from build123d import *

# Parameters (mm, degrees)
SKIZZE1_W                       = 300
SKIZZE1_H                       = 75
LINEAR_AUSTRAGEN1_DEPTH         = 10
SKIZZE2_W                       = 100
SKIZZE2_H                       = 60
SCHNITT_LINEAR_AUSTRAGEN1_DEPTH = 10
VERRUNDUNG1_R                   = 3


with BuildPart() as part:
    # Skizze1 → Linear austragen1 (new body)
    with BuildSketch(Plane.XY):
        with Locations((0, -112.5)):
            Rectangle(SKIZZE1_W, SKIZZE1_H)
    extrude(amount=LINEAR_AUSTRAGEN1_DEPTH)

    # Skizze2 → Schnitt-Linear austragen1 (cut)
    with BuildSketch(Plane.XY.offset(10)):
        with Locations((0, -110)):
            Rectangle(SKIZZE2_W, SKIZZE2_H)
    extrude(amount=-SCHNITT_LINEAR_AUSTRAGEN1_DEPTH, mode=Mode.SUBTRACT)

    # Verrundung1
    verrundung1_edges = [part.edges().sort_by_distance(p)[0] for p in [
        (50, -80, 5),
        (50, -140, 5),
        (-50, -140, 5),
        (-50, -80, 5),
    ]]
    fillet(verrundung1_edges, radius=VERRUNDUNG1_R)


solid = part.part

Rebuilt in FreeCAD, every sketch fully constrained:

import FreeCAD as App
import Part
import Sketcher


def edges_at(feature, points):
    """Names of the edges that pass closest to the given points."""
    edges = feature.Shape.Edges
    near = lambda p: min(range(len(edges)), key=lambda i: edges[i].distToShape(Part.Vertex(*p))[0])
    return sorted({f"Edge{near(p) + 1}" for p in points})


def add_polygon(sketch, points):
    """Adds a closed chain of lines whose ends are joined by coincident constraints."""
    first, n = sketch.GeometryCount, len(points)
    for a, b in zip(points, points[1:] + points[:1]):
        sketch.addGeometry(Part.LineSegment(App.Vector(*a, 0), App.Vector(*b, 0)), False)
    for i in range(n):
        sketch.addConstraint(Sketcher.Constraint("Coincident", first + i, 2, first + (i + 1) % n, 1))

doc = App.newDocument("Part")
params = doc.addObject("Spreadsheet::Sheet", "Params")
for row, (alias, value) in enumerate([
    ("sketch1_width", "300 mm"),
    ("sketch1_height", "75 mm"),
    ("pad1_length", "10 mm"),
    ("sketch2_width", "100 mm"),
    ("sketch2_height", "60 mm"),
    ("pocket1_length", "10 mm"),
    ("fillet_radius", "3 mm"),
], start=1):
    params.set(f"A{row}", alias)
    params.set(f"B{row}", "=" + value)
    params.setAlias(f"B{row}", alias)

body = doc.addObject("PartDesign::Body", "Body")

# Sketch on XY plane
sketch1 = doc.addObject("Sketcher::SketchObject", "Sketch")
body.addObject(sketch1)
sketch1.AttachmentSupport = (doc.XY_Plane, [""])
sketch1.MapMode = "FlatFace"
add_polygon(sketch1, [(-150, -75), (-150, -150), (150, -150), (150, -75)])  # lines 0-3
sketch1.addConstraint([
    Sketcher.Constraint("Vertical", 0),
    Sketcher.Constraint("Horizontal", 1),
    Sketcher.Constraint("Vertical", 2),
    Sketcher.Constraint("Horizontal", 3),
    Sketcher.Constraint("DistanceX", 1, 1, 1, 2, 300.0),
    Sketcher.Constraint("DistanceY", 0, 2, 0, 1, 75.0),
    Sketcher.Constraint("DistanceX", 0, 2, -1, 1, 150.0),
    Sketcher.Constraint("DistanceY", 0, 2, -1, 1, 150.0),
])
sketch1.setExpression("Constraints[8]", "Params.sketch1_width")
sketch1.setExpression("Constraints[9]", "Params.sketch1_height")
pad1 = doc.addObject("PartDesign::Pad", "Pad")
body.addObject(pad1)
pad1.Profile = sketch1
pad1.setExpression("Length", "Params.pad1_length")

# Sketch on XY plane
sketch2 = doc.addObject("Sketcher::SketchObject", "Sketch001")
body.addObject(sketch2)
sketch2.AttachmentSupport = (doc.XY_Plane, [""])
sketch2.MapMode = "FlatFace"
sketch2.AttachmentOffset = App.Placement(App.Vector(0, 0, 10), App.Rotation())
add_polygon(sketch2, [(-50, -80), (-50, -140), (50, -140), (50, -80)])  # lines 0-3
sketch2.addConstraint([
    Sketcher.Constraint("Vertical", 0),
    Sketcher.Constraint("Horizontal", 1),
    Sketcher.Constraint("Vertical", 2),
    Sketcher.Constraint("Horizontal", 3),
    Sketcher.Constraint("DistanceX", 1, 1, 1, 2, 100.0),
    Sketcher.Constraint("DistanceY", 0, 2, 0, 1, 60.0),
    Sketcher.Constraint("DistanceX", 0, 2, -1, 1, 50.0),
    Sketcher.Constraint("DistanceY", 0, 2, -1, 1, 140.0),
])
sketch2.setExpression("Constraints[8]", "Params.sketch2_width")
sketch2.setExpression("Constraints[9]", "Params.sketch2_height")
pocket1 = doc.addObject("PartDesign::Pocket", "Pocket")
body.addObject(pocket1)
pocket1.Profile = sketch2
pocket1.setExpression("Length", "Params.pocket1_length")
doc.recompute()

fillet = doc.addObject("PartDesign::Fillet", "Fillet")
body.addObject(fillet)
fillet.Base = (pocket1, edges_at(pocket1, [
    (50, -80, 5),
    (50, -140, 5),
    (-50, -140, 5),
    (-50, -80, 5),
]))
fillet.setExpression("Radius", "Params.fillet_radius")

doc.recompute()
